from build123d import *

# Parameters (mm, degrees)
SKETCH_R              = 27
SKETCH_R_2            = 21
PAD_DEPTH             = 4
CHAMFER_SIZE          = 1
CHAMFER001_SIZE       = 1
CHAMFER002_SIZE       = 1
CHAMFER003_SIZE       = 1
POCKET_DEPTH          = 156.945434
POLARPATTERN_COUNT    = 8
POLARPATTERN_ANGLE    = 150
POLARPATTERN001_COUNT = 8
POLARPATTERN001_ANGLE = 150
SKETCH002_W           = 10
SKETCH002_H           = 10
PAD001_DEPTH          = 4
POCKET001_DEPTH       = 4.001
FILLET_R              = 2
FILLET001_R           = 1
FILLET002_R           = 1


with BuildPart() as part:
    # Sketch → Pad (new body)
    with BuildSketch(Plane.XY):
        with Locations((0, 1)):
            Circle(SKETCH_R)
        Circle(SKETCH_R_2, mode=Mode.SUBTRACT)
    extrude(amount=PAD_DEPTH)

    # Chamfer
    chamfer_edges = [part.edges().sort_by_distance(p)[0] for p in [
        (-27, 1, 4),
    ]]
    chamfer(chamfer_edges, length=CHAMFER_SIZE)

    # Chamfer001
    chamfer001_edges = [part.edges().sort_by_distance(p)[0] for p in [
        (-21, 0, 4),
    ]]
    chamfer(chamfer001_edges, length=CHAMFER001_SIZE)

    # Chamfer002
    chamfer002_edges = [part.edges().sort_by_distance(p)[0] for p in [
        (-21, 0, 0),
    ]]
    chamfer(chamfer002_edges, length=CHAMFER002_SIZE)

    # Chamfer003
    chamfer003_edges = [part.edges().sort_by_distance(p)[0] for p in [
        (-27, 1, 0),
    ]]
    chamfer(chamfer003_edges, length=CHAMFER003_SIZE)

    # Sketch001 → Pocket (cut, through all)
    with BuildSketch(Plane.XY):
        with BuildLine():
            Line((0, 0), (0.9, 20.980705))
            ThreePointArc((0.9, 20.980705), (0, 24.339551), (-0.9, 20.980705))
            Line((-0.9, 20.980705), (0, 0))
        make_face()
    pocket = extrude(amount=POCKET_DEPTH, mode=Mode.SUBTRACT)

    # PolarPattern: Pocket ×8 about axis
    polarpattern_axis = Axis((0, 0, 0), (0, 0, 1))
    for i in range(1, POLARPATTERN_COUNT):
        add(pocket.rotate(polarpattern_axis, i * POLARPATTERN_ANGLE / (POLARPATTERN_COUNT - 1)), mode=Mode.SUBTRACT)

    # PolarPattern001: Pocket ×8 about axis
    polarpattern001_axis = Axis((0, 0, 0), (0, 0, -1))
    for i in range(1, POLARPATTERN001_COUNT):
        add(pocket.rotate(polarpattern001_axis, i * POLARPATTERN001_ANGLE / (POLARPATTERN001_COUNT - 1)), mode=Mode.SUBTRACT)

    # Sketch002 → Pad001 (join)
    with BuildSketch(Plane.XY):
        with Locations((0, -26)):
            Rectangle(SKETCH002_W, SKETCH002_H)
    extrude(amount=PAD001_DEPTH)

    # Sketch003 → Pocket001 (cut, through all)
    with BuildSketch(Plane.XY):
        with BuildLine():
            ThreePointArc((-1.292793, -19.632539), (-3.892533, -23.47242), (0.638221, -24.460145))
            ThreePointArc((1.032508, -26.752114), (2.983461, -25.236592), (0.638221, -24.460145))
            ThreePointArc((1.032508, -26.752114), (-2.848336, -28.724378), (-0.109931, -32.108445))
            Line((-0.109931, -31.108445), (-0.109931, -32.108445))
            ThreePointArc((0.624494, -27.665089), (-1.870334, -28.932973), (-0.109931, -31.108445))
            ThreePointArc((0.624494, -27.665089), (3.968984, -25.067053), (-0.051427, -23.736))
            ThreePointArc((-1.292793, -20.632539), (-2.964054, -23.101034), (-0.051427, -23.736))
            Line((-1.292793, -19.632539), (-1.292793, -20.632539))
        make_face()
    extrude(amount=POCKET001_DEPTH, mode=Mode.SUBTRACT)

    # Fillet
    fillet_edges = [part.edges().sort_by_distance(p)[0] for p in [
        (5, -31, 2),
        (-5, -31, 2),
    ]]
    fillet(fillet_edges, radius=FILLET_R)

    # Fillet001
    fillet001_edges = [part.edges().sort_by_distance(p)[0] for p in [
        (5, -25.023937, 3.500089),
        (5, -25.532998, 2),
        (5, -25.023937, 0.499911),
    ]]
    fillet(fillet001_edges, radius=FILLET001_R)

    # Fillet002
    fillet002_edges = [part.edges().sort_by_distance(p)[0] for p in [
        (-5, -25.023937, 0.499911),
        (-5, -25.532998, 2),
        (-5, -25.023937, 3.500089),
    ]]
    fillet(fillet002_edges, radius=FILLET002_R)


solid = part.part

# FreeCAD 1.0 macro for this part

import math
import FreeCAD as App
import Part
import Sketcher

V = App.Vector


def edges_at(feature, points):
    """Names of the edges that pass closest to the given points."""
    edges = feature.Shape.Edges
    near = lambda p: min(range(len(edges)), key=lambda i: edges[i].distToShape(Part.Vertex(*p))[0])
    return sorted({f"Edge{near(p) + 1}" for p in points})


def add_polygon(sketch, points):
    """Adds a closed chain of lines whose ends are joined by coincident constraints."""
    first, n = sketch.GeometryCount, len(points)
    for a, b in zip(points, points[1:] + points[:1]):
        sketch.addGeometry(Part.LineSegment(App.Vector(*a, 0), App.Vector(*b, 0)), False)
    for i in range(n):
        sketch.addConstraint(Sketcher.Constraint("Coincident", first + i, 2, first + (i + 1) % n, 1))

doc = App.newDocument("Part")
body = doc.addObject("PartDesign::Body", "Body")

# Sketch on XY plane
sketch1 = body.newObject("Sketcher::SketchObject", "Sketch")
sketch1.AttachmentSupport = (doc.getObject("XY_Plane"), [""])
sketch1.MapMode = "FlatFace"
sketch1.addGeometry([
    Part.Circle(V(0, 1, 0), V(0, 0, 1), 27),
    Part.Circle(V(0, 0, 0), V(0, 0, 1), 21),
], False)
sketch1.addConstraint([
    Sketcher.Constraint("Coincident", 1, 3, -1, 1),
    Sketcher.Constraint("PointOnObject", 0, 3, -2),
    Sketcher.Constraint("Diameter", 0, 54.0),
    Sketcher.Constraint("Diameter", 1, 42.0),
    Sketcher.Constraint("DistanceY", -1, 1, 0, 3, 1.0),
])
pad1 = body.newObject("PartDesign::Pad", "Pad")
pad1.Profile = sketch1
pad1.Length = 4
doc.recompute()

chamfer = body.newObject("PartDesign::Chamfer", "Chamfer")
chamfer.Base = (pad1, edges_at(pad1, [(-27, 1, 4)]))
chamfer.Size = 1
doc.recompute()

chamfer2 = body.newObject("PartDesign::Chamfer", "Chamfer001")
chamfer2.Base = (chamfer, edges_at(chamfer, [(-21, 0, 4)]))
chamfer2.Size = 1
doc.recompute()

chamfer3 = body.newObject("PartDesign::Chamfer", "Chamfer002")
chamfer3.Base = (chamfer2, edges_at(chamfer2, [(-21, 0, 0)]))
chamfer3.Size = 1
doc.recompute()

chamfer4 = body.newObject("PartDesign::Chamfer", "Chamfer003")
chamfer4.Base = (chamfer3, edges_at(chamfer3, [(-27, 1, 0)]))
chamfer4.Size = 1

# Sketch on XY plane
sketch2 = body.newObject("Sketcher::SketchObject", "Sketch001")
sketch2.AttachmentSupport = (doc.getObject("XY_Plane"), [""])
sketch2.MapMode = "FlatFace"
sketch2.addGeometry([
    Part.LineSegment(V(0, 0, 0), V(0.9, 20.980705, 0)),
    Part.ArcOfCircle(Part.Circle(V(0, 22.539551, 0), V(0, 0, 1), 1.8), math.radians(-60.000002), math.radians(240.000002)),
    Part.LineSegment(V(-0.9, 20.980705, 0), V(0, 0, 0)),
], False)
sketch2.addConstraint([
    Sketcher.Constraint("Coincident", 0, 2, 1, 1),
    Sketcher.Constraint("Coincident", 1, 2, 2, 1),
    Sketcher.Constraint("Coincident", 2, 2, 0, 1),
    Sketcher.Constraint("Coincident", 2, 2, -1, 1),
    Sketcher.Constraint("Symmetric", 0, 2, 1, 2, -2),
    Sketcher.Constraint("Radius", 1, 1.8),
    Sketcher.Constraint("Distance", 0, 21.0),
    Sketcher.Constraint("DistanceX", -1, 1, 0, 2, 0.9),
])
pocket1 = body.newObject("PartDesign::Pocket", "Pocket")
pocket1.Profile = sketch2
pocket1.Type = "ThroughAll"
pocket1.Reversed = True
doc.recompute()

polarpattern = body.newObject("PartDesign::PolarPattern", "PolarPattern")
polarpattern.Originals = [pocket1]
polarpattern.Axis = (doc.getObject("Z_Axis"), [""])
polarpattern.Angle = 150
polarpattern.Occurrences = 8
body.Tip = polarpattern
doc.recompute()

polarpattern2 = body.newObject("PartDesign::PolarPattern", "PolarPattern001")
polarpattern2.Originals = [pocket1]
polarpattern2.Axis = (doc.getObject("Z_Axis"), [""])
polarpattern2.Angle = 150
polarpattern2.Occurrences = 8
polarpattern2.Reversed = True
body.Tip = polarpattern2

# Sketch on XY plane
sketch3 = body.newObject("Sketcher::SketchObject", "Sketch002")
sketch3.AttachmentSupport = (doc.getObject("XY_Plane"), [""])
sketch3.MapMode = "FlatFace"
add_polygon(sketch3, [(-5, -21), (-5, -31), (5, -31), (5, -21)])  # lines 0-3
sketch3.addConstraint([
    Sketcher.Constraint("Vertical", 0),
    Sketcher.Constraint("Horizontal", 1),
    Sketcher.Constraint("Vertical", 2),
    Sketcher.Constraint("Horizontal", 3),
    Sketcher.Constraint("Equal", 3, 0),
    Sketcher.Constraint("DistanceX", 1, 1, 1, 2, 10.0),
    Sketcher.Constraint("DistanceX", 0, 2, -1, 1, 5.0),
    Sketcher.Constraint("DistanceY", 0, 2, -1, 1, 31.0),
])
pad2 = body.newObject("PartDesign::Pad", "Pad001")
pad2.Profile = sketch3
pad2.Length = 4

# Sketch on XY plane
sketch4 = body.newObject("Sketcher::SketchObject", "Sketch003")
sketch4.AttachmentSupport = (doc.getObject("XY_Plane"), [""])
sketch4.MapMode = "FlatFace"
sketch4.addGeometry([
    Part.ArcOfCircle(Part.Circle(V(-1.292793, -22.432539, 0), V(0, 0, 1), 2.8), math.radians(90.000001), math.radians(313.602237)),  # 0
    Part.ArcOfCircle(Part.Circle(V(1.603728, -25.473948, 0), V(0, 0, 1), 1.4), math.radians(-114.080158), math.radians(133.602239)),  # 1
    Part.ArcOfCircle(Part.Circle(V(-0.109931, -29.308445, 0), V(0, 0, 1), 2.8), math.radians(65.919864), math.radians(269.999998)),  # 2
    Part.LineSegment(V(-0.109931, -32.108445, 0), V(-0.109931, -31.108445, 0)),  # 3
    Part.ArcOfCircle(Part.Circle(V(-0.109931, -29.308445, 0), V(0, 0, 1), 1.8), math.radians(65.919877), math.radians(269.99999)),  # 4
    Part.ArcOfCircle(Part.Circle(V(1.603728, -25.473948, 0), V(0, 0, 1), 2.4), math.radians(-114.080147), math.radians(133.602243)),  # 5
    Part.ArcOfCircle(Part.Circle(V(-1.292793, -22.432539, 0), V(0, 0, 1), 1.8), math.radians(90.000007), math.radians(313.602226)),  # 6
    Part.LineSegment(V(-1.292793, -20.632539, 0), V(-1.292793, -19.632539, 0)),  # 7
], False)
sketch4.addConstraint([
    Sketcher.Constraint("Tangent", 0, 2, 1, 2),
    Sketcher.Constraint("Tangent", 1, 1, 2, 1),
    Sketcher.Constraint("Coincident", 2, 2, 3, 1),
    Sketcher.Constraint("Coincident", 3, 2, 4, 2),
    Sketcher.Constraint("Tangent", 4, 1, 5, 1),
    Sketcher.Constraint("Tangent", 5, 2, 6, 2),
    Sketcher.Constraint("Coincident", 6, 1, 7, 1),
    Sketcher.Constraint("Coincident", 7, 2, 0, 1),
    Sketcher.Constraint("Vertical", 3),
    Sketcher.Constraint("Vertical", 7),
    Sketcher.Constraint("Coincident", 4, 3, 2, 3),
    Sketcher.Constraint("Coincident", 5, 3, 1, 3),
    Sketcher.Constraint("Coincident", 6, 3, 0, 3),
    Sketcher.Constraint("Equal", 0, 2),
    Sketcher.Constraint("Vertical", 4, 3, 2, 2),
    Sketcher.Constraint("Vertical", 0, 3, 6, 1),
    Sketcher.Constraint("Radius", 0, 2.8),
    Sketcher.Constraint("Radius", 1, 1.4),
    Sketcher.Constraint("Radius", 4, 1.8),
    Sketcher.Constraint("DistanceY", 5, 2, -1, 1, 23.736),
    Sketcher.Constraint("DistanceY", 4, 3, 0, 2, 4.8483),
    Sketcher.Constraint("DistanceY", 0, 3, -1, 1, 22.432539),
    Sketcher.Constraint("DistanceX", -1, 1, 1, 3, 1.603728),
])
pocket2 = body.newObject("PartDesign::Pocket", "Pocket001")
pocket2.Profile = sketch4
pocket2.Type = "ThroughAll"
pocket2.Reversed = True
doc.recompute()

fillet = body.newObject("PartDesign::Fillet", "Fillet")
fillet.Base = (pocket2, edges_at(pocket2, [(5, -31, 2), (-5, -31, 2)]))
fillet.Radius = 2
doc.recompute()

fillet2 = body.newObject("PartDesign::Fillet", "Fillet001")
fillet2.Base = (fillet, edges_at(fillet, [(5, -25.024, 3.5), (5, -25.533, 2), (5, -25.024, 0.5)]))
fillet2.Radius = 1
doc.recompute()

fillet3 = body.newObject("PartDesign::Fillet", "Fillet002")
fillet3.Base = (fillet2, edges_at(fillet2, [(-5, -25.024, 0.5), (-5, -25.533, 2), (-5, -25.024, 3.5)]))
fillet3.Radius = 1

doc.recompute()
